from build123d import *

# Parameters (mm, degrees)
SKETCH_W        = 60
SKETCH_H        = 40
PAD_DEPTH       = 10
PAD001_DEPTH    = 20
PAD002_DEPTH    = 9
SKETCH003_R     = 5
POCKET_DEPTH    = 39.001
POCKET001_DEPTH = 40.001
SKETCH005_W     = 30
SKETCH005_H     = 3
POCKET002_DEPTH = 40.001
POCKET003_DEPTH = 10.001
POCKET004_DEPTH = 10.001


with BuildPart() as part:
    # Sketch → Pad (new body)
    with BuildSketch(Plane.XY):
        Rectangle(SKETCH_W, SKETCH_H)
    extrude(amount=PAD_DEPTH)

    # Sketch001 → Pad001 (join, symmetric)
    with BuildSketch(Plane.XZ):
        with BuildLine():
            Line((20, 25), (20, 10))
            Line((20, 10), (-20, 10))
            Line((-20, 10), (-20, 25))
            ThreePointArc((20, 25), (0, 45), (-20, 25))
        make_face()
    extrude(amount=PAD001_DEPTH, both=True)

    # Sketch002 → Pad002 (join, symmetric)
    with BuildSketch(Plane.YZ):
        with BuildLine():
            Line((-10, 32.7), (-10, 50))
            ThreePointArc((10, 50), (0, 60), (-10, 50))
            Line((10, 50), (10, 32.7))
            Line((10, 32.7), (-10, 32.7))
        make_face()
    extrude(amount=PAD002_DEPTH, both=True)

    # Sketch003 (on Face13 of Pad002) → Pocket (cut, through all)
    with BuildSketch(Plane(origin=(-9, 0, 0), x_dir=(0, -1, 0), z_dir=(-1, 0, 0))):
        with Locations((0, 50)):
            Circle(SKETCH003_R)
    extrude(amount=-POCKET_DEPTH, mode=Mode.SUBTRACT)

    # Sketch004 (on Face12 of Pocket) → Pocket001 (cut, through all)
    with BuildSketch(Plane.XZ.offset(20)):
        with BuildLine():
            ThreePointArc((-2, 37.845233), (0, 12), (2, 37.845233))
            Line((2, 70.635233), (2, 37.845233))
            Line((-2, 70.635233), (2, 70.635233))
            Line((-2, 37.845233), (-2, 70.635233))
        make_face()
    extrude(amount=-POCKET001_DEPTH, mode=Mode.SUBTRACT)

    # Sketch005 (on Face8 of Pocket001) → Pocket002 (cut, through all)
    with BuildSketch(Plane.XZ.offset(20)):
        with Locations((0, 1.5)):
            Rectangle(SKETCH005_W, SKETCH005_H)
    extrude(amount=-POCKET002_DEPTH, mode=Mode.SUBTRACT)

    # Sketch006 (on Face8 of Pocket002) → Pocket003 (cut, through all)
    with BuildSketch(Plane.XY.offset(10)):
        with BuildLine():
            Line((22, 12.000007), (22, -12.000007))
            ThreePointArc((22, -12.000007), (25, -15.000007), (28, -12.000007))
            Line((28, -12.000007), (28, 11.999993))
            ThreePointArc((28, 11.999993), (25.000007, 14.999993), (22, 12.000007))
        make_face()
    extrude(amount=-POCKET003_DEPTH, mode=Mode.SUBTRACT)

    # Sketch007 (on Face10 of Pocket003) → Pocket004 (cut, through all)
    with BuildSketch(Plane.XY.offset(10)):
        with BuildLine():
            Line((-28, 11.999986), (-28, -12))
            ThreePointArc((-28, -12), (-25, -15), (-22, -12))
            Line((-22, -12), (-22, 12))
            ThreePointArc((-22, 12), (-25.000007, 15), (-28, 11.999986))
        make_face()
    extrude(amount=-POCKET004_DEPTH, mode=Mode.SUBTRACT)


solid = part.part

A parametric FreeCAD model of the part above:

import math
import FreeCAD as App
import Part
import Sketcher
from FreeCAD import Vector
Q = App.Units.Quantity


def add_polygon(sketch, points):
    """Adds a closed chain of lines whose ends are joined by coincident constraints."""
    first, n = sketch.GeometryCount, len(points)
    for a, b in zip(points, points[1:] + points[:1]):
        sketch.addGeometry(Part.LineSegment(App.Vector(*a, 0), App.Vector(*b, 0)), False)
    for i in range(n):
        sketch.addConstraint(Sketcher.Constraint("Coincident", first + i, 2, first + (i + 1) % n, 1))

doc = App.newDocument("Part")
body = doc.addObject("PartDesign::Body", "Body")

sketch1 = body.newObject("Sketcher::SketchObject", "Sketch")
sketch1.AttachmentSupport = (doc.getObject("XY_Plane"), [""])
sketch1.MapMode = "FlatFace"
add_polygon(sketch1, [(-30, 20), (-30, -20), (30, -20), (30, 20)])
sketch1.addConstraint([
    Sketcher.Constraint("Vertical", 0),
    Sketcher.Constraint("Horizontal", 1),
    Sketcher.Constraint("Vertical", 2),
    Sketcher.Constraint("Horizontal", 3),
    Sketcher.Constraint("Symmetric", 0, 2, 2, 2, -1, 1),
    Sketcher.Constraint("DistanceX", 1, 1, 1, 2, Q("60 mm")),
    Sketcher.Constraint("DistanceY", 0, 2, 0, 1, Q("40 mm")),
])
pad1 = body.newObject("PartDesign::Pad", "Pad")
pad1.Profile = sketch1
pad1.Length = 10

sketch2 = body.newObject("Sketcher::SketchObject", "Sketch001")
sketch2.AttachmentSupport = (doc.getObject("XZ_Plane"), [""])
sketch2.MapMode = "FlatFace"
sketch2.addGeometry([
    Part.LineSegment(Vector(20, 10, 0), Vector(20, 25, 0)),
    Part.ArcOfCircle(Part.Circle(Vector(0, 25, 0), Vector(0, 0, 1), 20), math.radians(0), math.radians(180)),
    Part.LineSegment(Vector(-20, 25, 0), Vector(-20, 10, 0)),
    Part.LineSegment(Vector(-20, 10, 0), Vector(20, 10, 0)),
], False)
sketch2.addConstraint([
    Sketcher.Constraint("Tangent", 0, 2, 1, 1),
    Sketcher.Constraint("Tangent", 1, 2, 2, 1),
    Sketcher.Constraint("Coincident", 2, 2, 3, 1),
    Sketcher.Constraint("Coincident", 3, 2, 0, 1),
    Sketcher.Constraint("Vertical", 0),
    Sketcher.Constraint("Vertical", 2),
    Sketcher.Constraint("Horizontal", 3),
    Sketcher.Constraint("PointOnObject", 1, 3, -2),
    Sketcher.Constraint("Radius", 1, Q("20 mm")),
    Sketcher.Constraint("DistanceY", 0, 1, 0, 2, Q("15 mm")),
    Sketcher.Constraint("DistanceY", -1, 1, 1, 3, Q("25 mm")),
])
pad2 = body.newObject("PartDesign::Pad", "Pad001")
pad2.Profile = sketch2
pad2.Length = 40
pad2.Midplane = True

sketch3 = body.newObject("Sketcher::SketchObject", "Sketch002")
sketch3.AttachmentSupport = (doc.getObject("YZ_Plane"), [""])
sketch3.MapMode = "FlatFace"
sketch3.addGeometry([
    Part.LineSegment(Vector(-10, 50, 0), Vector(-10, 32.7, 0)),
    Part.LineSegment(Vector(-10, 32.7, 0), Vector(10, 32.7, 0)),
    Part.LineSegment(Vector(10, 32.7, 0), Vector(10, 50, 0)),
    Part.ArcOfCircle(Part.Circle(Vector(0, 50, 0), Vector(0, 0, 1), 10), math.radians(0), math.radians(180)),
], False)
sketch3.addConstraint([
    Sketcher.Constraint("Coincident", 0, 2, 1, 1),
    Sketcher.Constraint("Coincident", 1, 2, 2, 1),
    Sketcher.Constraint("Tangent", 2, 2, 3, 1),
    Sketcher.Constraint("Tangent", 3, 2, 0, 1),
    Sketcher.Constraint("Vertical", 0),
    Sketcher.Constraint("Horizontal", 1),
    Sketcher.Constraint("Vertical", 2),
    Sketcher.Constraint("PointOnObject", 3, 3, -2),
    Sketcher.Constraint("Radius", 3, Q("10 mm")),
    Sketcher.Constraint("DistanceY", 0, 2, 0, 1, Q("17.3 mm")),
    Sketcher.Constraint("DistanceY", -1, 1, 3, 3, Q("50 mm")),
])
pad3 = body.newObject("PartDesign::Pad", "Pad002")
pad3.Profile = sketch3
pad3.Length = 18
pad3.Midplane = True

sketch4 = body.newObject("Sketcher::SketchObject", "Sketch003")
sketch4.AttachmentSupport = (doc.getObject("YZ_Plane"), [""])
sketch4.MapMode = "FlatFace"
sketch4.AttachmentOffset = App.Placement(Vector(0, 0, -9), App.Rotation())
sketch4.addGeometry(Part.Circle(Vector(0, 50, 0), Vector(0, 0, 1), 5), False)
sketch4.addConstraint([
    Sketcher.Constraint("PointOnObject", 0, 3, -2),
    Sketcher.Constraint("Diameter", 0, Q("10 mm")),
    Sketcher.Constraint("DistanceY", -1, 1, 0, 3, Q("50 mm")),
])
pocket1 = body.newObject("PartDesign::Pocket", "Pocket")
pocket1.Profile = sketch4
pocket1.Type = "ThroughAll"
pocket1.Reversed = True

sketch5 = body.newObject("Sketcher::SketchObject", "Sketch004")
sketch5.AttachmentSupport = (doc.getObject("XZ_Plane"), [""])
sketch5.MapMode = "FlatFace"
sketch5.AttachmentOffset = App.Placement(Vector(0, 0, 20), App.Rotation())
sketch5.addGeometry([
    Part.ArcOfCircle(Part.Circle(Vector(0, 25, 0), Vector(0, 0, 1), 13), math.radians(98.849883), math.radians(441.150117)),
    Part.LineSegment(Vector(2, 37.845233, 0), Vector(2, 70.635233, 0)),
    Part.LineSegment(Vector(2, 70.635233, 0), Vector(-2, 70.635233, 0)),
    Part.LineSegment(Vector(-2, 70.635233, 0), Vector(-2, 37.845233, 0)),
], False)
sketch5.addConstraint([
    Sketcher.Constraint("Coincident", 0, 2, 1, 1),
    Sketcher.Constraint("Coincident", 1, 2, 2, 1),
    Sketcher.Constraint("Coincident", 2, 2, 3, 1),
    Sketcher.Constraint("Coincident", 3, 2, 0, 1),
    Sketcher.Constraint("Vertical", 1),
    Sketcher.Constraint("Horizontal", 2),
    Sketcher.Constraint("Vertical", 3),
    Sketcher.Constraint("Symmetric", 0, 2, 3, 2, -2),
    Sketcher.Constraint("Radius", 0, Q("13 mm")),
    Sketcher.Constraint("DistanceX", 2, 2, 2, 1, Q("4 mm")),
    Sketcher.Constraint("DistanceY", -1, 1, 0, 3, Q("25 mm")),
    Sketcher.Constraint("DistanceY", 1, 1, 1, 2, Q("32.79 mm")),
])
pocket2 = body.newObject("PartDesign::Pocket", "Pocket001")
pocket2.Profile = sketch5
pocket2.Type = "ThroughAll"

sketch6 = body.newObject("Sketcher::SketchObject", "Sketch005")
sketch6.AttachmentSupport = (doc.getObject("XZ_Plane"), [""])
sketch6.MapMode = "FlatFace"
sketch6.AttachmentOffset = App.Placement(Vector(0, 0, 20), App.Rotation())
add_polygon(sketch6, [(-15, 3), (-15, 0), (15, 0), (15, 3)])
sketch6.addConstraint([
    Sketcher.Constraint("Vertical", 0),
    Sketcher.Constraint("Horizontal", 1),
    Sketcher.Constraint("Vertical", 2),
    Sketcher.Constraint("Horizontal", 3),
    Sketcher.Constraint("Symmetric", 0, 2, 1, 2, -1, 1),
    Sketcher.Constraint("DistanceX", 1, 1, 1, 2, Q("30 mm")),
    Sketcher.Constraint("DistanceY", 0, 2, 0, 1, Q("3 mm")),
])
pocket3 = body.newObject("PartDesign::Pocket", "Pocket002")
pocket3.Profile = sketch6
pocket3.Type = "ThroughAll"

sketch7 = body.newObject("Sketcher::SketchObject", "Sketch006")
sketch7.AttachmentSupport = (doc.getObject("XY_Plane"), [""])
sketch7.MapMode = "FlatFace"
sketch7.AttachmentOffset = App.Placement(Vector(0, 0, 10), App.Rotation())
sketch7.addGeometry([
    Part.LineSegment(Vector(22, 12.000007, 0), Vector(22, -12.000007, 0)),
    Part.ArcOfCircle(Part.Circle(Vector(25, -12.000007, 0), Vector(0, 0, 1), 3), math.radians(180), math.radians(360)),
    Part.LineSegment(Vector(28, -12.000007, 0), Vector(28, 11.999993, 0)),
    Part.ArcOfCircle(Part.Circle(Vector(25, 11.999993, 0), Vector(0, 0, 1), 3), math.radians(0), math.radians(179.999733)),
], False)
sketch7.addConstraint([
    Sketcher.Constraint("Tangent", 0, 2, 1, 1),
    Sketcher.Constraint("Tangent", 1, 2, 2, 1),
    Sketcher.Constraint("Tangent", 2, 2, 3, 1),
    Sketcher.Constraint("Coincident", 3, 2, 0, 1),
    Sketcher.Constraint("Vertical", 0),
    Sketcher.Constraint("Vertical", 2),
    Sketcher.Constraint("Radius", 1, Q("3 mm")),
    Sketcher.Constraint("DistanceY", 2, 1, 2, 2, Q("24 mm")),
    Sketcher.Constraint("DistanceX", -1, 1, 1, 3, Q("25 mm")),
    Sketcher.Constraint("DistanceY", 0, 2, 0, 1, Q("24.000014 mm")),
    Sketcher.Constraint("DistanceY", 1, 3, -1, 1, Q("12.000007 mm")),
])
pocket4 = body.newObject("PartDesign::Pocket", "Pocket003")
pocket4.Profile = sketch7
pocket4.Type = "ThroughAll"

sketch8 = body.newObject("Sketcher::SketchObject", "Sketch007")
sketch8.AttachmentSupport = (doc.getObject("XY_Plane"), [""])
sketch8.MapMode = "FlatFace"
sketch8.AttachmentOffset = App.Placement(Vector(0, 0, 10), App.Rotation())
sketch8.addGeometry([
    Part.LineSegment(Vector(-28, 11.999986, 0), Vector(-28, -12, 0)),
    Part.ArcOfCircle(Part.Circle(Vector(-25, -12, 0), Vector(0, 0, 1), 3), math.radians(180), math.radians(360)),
    Part.LineSegment(Vector(-22, -12, 0), Vector(-22, 12, 0)),
    Part.ArcOfCircle(Part.Circle(Vector(-25, 12, 0), Vector(0, 0, 1), 3), math.radians(0), math.radians(180.000267)),
], False)
sketch8.addConstraint([
    Sketcher.Constraint("Tangent", 0, 2, 1, 1),
    Sketcher.Constraint("Tangent", 1, 2, 2, 1),
    Sketcher.Constraint("Tangent", 2, 2, 3, 1),
    Sketcher.Constraint("Coincident", 3, 2, 0, 1),
    Sketcher.Constraint("Vertical", 0),
    Sketcher.Constraint("Vertical", 2),
    Sketcher.Constraint("Radius", 1, Q("3 mm")),
    Sketcher.Constraint("DistanceY", 2, 1, 2, 2, Q("24 mm")),
    Sketcher.Constraint("DistanceX", 1, 3, -1, 1, Q("25 mm")),
    Sketcher.Constraint("DistanceY", 1, 3, -1, 1, Q("12 mm")),
    Sketcher.Constraint("DistanceY", 0, 2, 0, 1, Q("23.999986 mm")),
])
pocket5 = body.newObject("PartDesign::Pocket", "Pocket004")
pocket5.Profile = sketch8
pocket5.Type = "ThroughAll"

doc.recompute()
